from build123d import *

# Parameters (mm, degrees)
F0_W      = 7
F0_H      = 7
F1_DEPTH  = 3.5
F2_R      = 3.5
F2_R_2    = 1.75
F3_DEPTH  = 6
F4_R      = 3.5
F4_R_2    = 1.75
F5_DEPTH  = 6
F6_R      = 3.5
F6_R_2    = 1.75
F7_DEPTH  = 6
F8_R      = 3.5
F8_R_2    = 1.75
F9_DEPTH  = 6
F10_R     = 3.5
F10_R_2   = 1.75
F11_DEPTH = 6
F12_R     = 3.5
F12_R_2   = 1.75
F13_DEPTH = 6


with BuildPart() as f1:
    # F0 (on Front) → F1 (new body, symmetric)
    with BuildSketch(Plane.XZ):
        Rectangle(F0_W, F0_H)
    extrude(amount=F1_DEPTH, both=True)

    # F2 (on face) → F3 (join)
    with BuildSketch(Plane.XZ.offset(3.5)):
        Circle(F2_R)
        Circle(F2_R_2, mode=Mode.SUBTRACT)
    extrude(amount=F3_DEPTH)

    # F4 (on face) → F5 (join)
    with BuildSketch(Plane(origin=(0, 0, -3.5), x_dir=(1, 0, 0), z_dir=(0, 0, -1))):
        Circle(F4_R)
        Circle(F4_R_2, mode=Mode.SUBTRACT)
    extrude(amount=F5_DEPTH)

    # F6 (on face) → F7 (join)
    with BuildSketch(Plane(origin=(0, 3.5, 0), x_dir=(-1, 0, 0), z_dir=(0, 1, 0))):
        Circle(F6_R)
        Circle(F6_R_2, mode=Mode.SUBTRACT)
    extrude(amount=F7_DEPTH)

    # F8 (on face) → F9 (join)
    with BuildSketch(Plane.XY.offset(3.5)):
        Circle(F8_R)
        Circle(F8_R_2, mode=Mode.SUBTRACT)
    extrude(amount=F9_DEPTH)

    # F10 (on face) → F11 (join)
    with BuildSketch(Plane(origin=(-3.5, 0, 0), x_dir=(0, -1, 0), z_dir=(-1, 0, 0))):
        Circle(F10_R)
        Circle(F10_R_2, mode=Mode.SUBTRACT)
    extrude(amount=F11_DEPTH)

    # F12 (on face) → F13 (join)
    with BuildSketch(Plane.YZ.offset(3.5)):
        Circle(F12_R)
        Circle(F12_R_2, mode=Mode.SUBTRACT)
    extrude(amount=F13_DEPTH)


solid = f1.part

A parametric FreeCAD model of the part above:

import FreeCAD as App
import Part
import Sketcher
from FreeCAD import Vector


def add_polygon(sketch, points):
    """Adds a closed chain of lines whose ends are joined by coincident constraints."""
    first, n = sketch.GeometryCount, len(points)
    for a, b in zip(points, points[1:] + points[:1]):
        sketch.addGeometry(Part.LineSegment(App.Vector(*a, 0), App.Vector(*b, 0)), False)
    for i in range(n):
        sketch.addConstraint(Sketcher.Constraint("Coincident", first + i, 2, first + (i + 1) % n, 1))

doc = App.newDocument("Part")
params = doc.addObject("Spreadsheet::Sheet", "Params")
for row, (alias, value) in enumerate([
    ("sketch1_width", "7 mm"),
    ("pad1_length", "7 mm"),
    ("sketch2_diameter", "7 mm"),
    ("sketch2_diameter2", "3.5 mm"),
    ("pad2_length", "6 mm"),
    ("sketch3_diameter", "7 mm"),
    ("sketch3_diameter2", "3.5 mm"),
    ("pad3_length", "6 mm"),
    ("sketch4_diameter", "7 mm"),
    ("sketch4_diameter2", "3.5 mm"),
    ("pad4_length", "6 mm"),
    ("sketch5_diameter", "7 mm"),
    ("sketch5_diameter2", "3.5 mm"),
    ("pad5_length", "6 mm"),
    ("sketch6_diameter", "7 mm"),
    ("sketch6_diameter2", "3.5 mm"),
    ("pad6_length", "6 mm"),
    ("sketch7_diameter", "7 mm"),
    ("sketch7_diameter2", "3.5 mm"),
    ("pad7_length", "6 mm"),
], start=1):
    params.set(f"A{row}", alias)
    params.set(f"B{row}", "=" + value)
    params.setAlias(f"B{row}", alias)

body = doc.addObject("PartDesign::Body", "Body")

sketch1 = body.newObject("Sketcher::SketchObject", "Sketch")
sketch1.AttachmentSupport = (doc.getObject("XZ_Plane"), [""])
sketch1.MapMode = "FlatFace"
add_polygon(sketch1, [(-4, 4), (-4, -4), (4, -4), (4, 4)])
sketch1.addConstraint([
    Sketcher.Constraint("Vertical", 0),
    Sketcher.Constraint("Horizontal", 1),
    Sketcher.Constraint("Vertical", 2),
    Sketcher.Constraint("Horizontal", 3),
    Sketcher.Constraint("Symmetric", 0, 2, 2, 2, -1, 1),
    Sketcher.Constraint("Equal", 3, 0),
    Sketcher.Constraint("DistanceX", 1, 1, 1, 2, 7.0),
])
sketch1.setExpression("Constraints[10]", "Params.sketch1_width")
pad1 = body.newObject("PartDesign::Pad", "Pad")
pad1.Profile = sketch1
pad1.setExpression("Length", "Params.pad1_length")
pad1.Midplane = True

sketch2 = body.newObject("Sketcher::SketchObject", "Sketch001")
sketch2.AttachmentSupport = (doc.getObject("XZ_Plane"), [""])
sketch2.MapMode = "FlatFace"
sketch2.AttachmentOffset = App.Placement(Vector(0, 0, 3.5), App.Rotation())
sketch2.addGeometry([
    Part.Circle(Vector(0, 0, 0), Vector(0, 0, 1), 3.5),
    Part.Circle(Vector(0, 0, 0), Vector(0, 0, 1), 1.8),
], False)
sketch2.addConstraint([
    Sketcher.Constraint("Coincident", 0, 3, -1, 1),
    Sketcher.Constraint("Coincident", 1, 3, -1, 1),
    Sketcher.Constraint("Diameter", 0, 7.0),
    Sketcher.Constraint("Diameter", 1, 3.5),
])
sketch2.setExpression("Constraints[2]", "Params.sketch2_diameter")
sketch2.setExpression("Constraints[3]", "Params.sketch2_diameter2")
pad2 = body.newObject("PartDesign::Pad", "Pad001")
pad2.Profile = sketch2
pad2.setExpression("Length", "Params.pad2_length")

sketch3 = body.newObject("Sketcher::SketchObject", "Sketch002")
sketch3.AttachmentSupport = (doc.getObject("XY_Plane"), [""])
sketch3.MapMode = "FlatFace"
sketch3.AttachmentOffset = App.Placement(Vector(0, 0, -3.5), App.Rotation())
sketch3.addGeometry([
    Part.Circle(Vector(0, 0, 0), Vector(0, 0, 1), 3.5),
    Part.Circle(Vector(0, 0, 0), Vector(0, 0, 1), 1.8),
], False)
sketch3.addConstraint([
    Sketcher.Constraint("Coincident", 0, 3, -1, 1),
    Sketcher.Constraint("Coincident", 1, 3, -1, 1),
    Sketcher.Constraint("Diameter", 0, 7.0),
    Sketcher.Constraint("Diameter", 1, 3.5),
])
sketch3.setExpression("Constraints[2]", "Params.sketch3_diameter")
sketch3.setExpression("Constraints[3]", "Params.sketch3_diameter2")
pad3 = body.newObject("PartDesign::Pad", "Pad002")
pad3.Profile = sketch3
pad3.setExpression("Length", "Params.pad3_length")
pad3.Reversed = True

sketch4 = body.newObject("Sketcher::SketchObject", "Sketch003")
sketch4.AttachmentSupport = (doc.getObject("XZ_Plane"), [""])
sketch4.MapMode = "FlatFace"
sketch4.AttachmentOffset = App.Placement(Vector(0, 0, -3.5), App.Rotation())
sketch4.addGeometry([
    Part.Circle(Vector(0, 0, 0), Vector(0, 0, 1), 3.5),
    Part.Circle(Vector(0, 0, 0), Vector(0, 0, 1), 1.8),
], False)
sketch4.addConstraint([
    Sketcher.Constraint("Coincident", 0, 3, -1, 1),
    Sketcher.Constraint("Coincident", 1, 3, -1, 1),
    Sketcher.Constraint("Diameter", 0, 7.0),
    Sketcher.Constraint("Diameter", 1, 3.5),
])
sketch4.setExpression("Constraints[2]", "Params.sketch4_diameter")
sketch4.setExpression("Constraints[3]", "Params.sketch4_diameter2")
pad4 = body.newObject("PartDesign::Pad", "Pad003")
pad4.Profile = sketch4
pad4.setExpression("Length", "Params.pad4_length")
pad4.Reversed = True

sketch5 = body.newObject("Sketcher::SketchObject", "Sketch004")
sketch5.AttachmentSupport = (doc.getObject("XY_Plane"), [""])
sketch5.MapMode = "FlatFace"
sketch5.AttachmentOffset = App.Placement(Vector(0, 0, 3.5), App.Rotation())
sketch5.addGeometry([
    Part.Circle(Vector(0, 0, 0), Vector(0, 0, 1), 3.5),
    Part.Circle(Vector(0, 0, 0), Vector(0, 0, 1), 1.8),
], False)
sketch5.addConstraint([
    Sketcher.Constraint("Coincident", 0, 3, -1, 1),
    Sketcher.Constraint("Coincident", 1, 3, -1, 1),
    Sketcher.Constraint("Diameter", 0, 7.0),
    Sketcher.Constraint("Diameter", 1, 3.5),
])
sketch5.setExpression("Constraints[2]", "Params.sketch5_diameter")
sketch5.setExpression("Constraints[3]", "Params.sketch5_diameter2")
pad5 = body.newObject("PartDesign::Pad", "Pad004")
pad5.Profile = sketch5
pad5.setExpression("Length", "Params.pad5_length")

sketch6 = body.newObject("Sketcher::SketchObject", "Sketch005")
sketch6.AttachmentSupport = (doc.getObject("YZ_Plane"), [""])
sketch6.MapMode = "FlatFace"
sketch6.AttachmentOffset = App.Placement(Vector(0, 0, -3.5), App.Rotation())
sketch6.addGeometry([
    Part.Circle(Vector(0, 0, 0), Vector(0, 0, 1), 3.5),
    Part.Circle(Vector(0, 0, 0), Vector(0, 0, 1), 1.8),
], False)
sketch6.addConstraint([
    Sketcher.Constraint("Coincident", 0, 3, -1, 1),
    Sketcher.Constraint("Coincident", 1, 3, -1, 1),
    Sketcher.Constraint("Diameter", 0, 7.0),
    Sketcher.Constraint("Diameter", 1, 3.5),
])
sketch6.setExpression("Constraints[2]", "Params.sketch6_diameter")
sketch6.setExpression("Constraints[3]", "Params.sketch6_diameter2")
pad6 = body.newObject("PartDesign::Pad", "Pad005")
pad6.Profile = sketch6
pad6.setExpression("Length", "Params.pad6_length")
pad6.Reversed = True

sketch7 = body.newObject("Sketcher::SketchObject", "Sketch006")
sketch7.AttachmentSupport = (doc.getObject("YZ_Plane"), [""])
sketch7.MapMode = "FlatFace"
sketch7.AttachmentOffset = App.Placement(Vector(0, 0, 3.5), App.Rotation())
sketch7.addGeometry([
    Part.Circle(Vector(0, 0, 0), Vector(0, 0, 1), 3.5),
    Part.Circle(Vector(0, 0, 0), Vector(0, 0, 1), 1.8),
], False)
sketch7.addConstraint([
    Sketcher.Constraint("Coincident", 0, 3, -1, 1),
    Sketcher.Constraint("Coincident", 1, 3, -1, 1),
    Sketcher.Constraint("Diameter", 0, 7.0),
    Sketcher.Constraint("Diameter", 1, 3.5),
])
sketch7.setExpression("Constraints[2]", "Params.sketch7_diameter")
sketch7.setExpression("Constraints[3]", "Params.sketch7_diameter2")
pad7 = body.newObject("PartDesign::Pad", "Pad006")
pad7.Profile = sketch7
pad7.setExpression("Length", "Params.pad7_length")

doc.recompute()
